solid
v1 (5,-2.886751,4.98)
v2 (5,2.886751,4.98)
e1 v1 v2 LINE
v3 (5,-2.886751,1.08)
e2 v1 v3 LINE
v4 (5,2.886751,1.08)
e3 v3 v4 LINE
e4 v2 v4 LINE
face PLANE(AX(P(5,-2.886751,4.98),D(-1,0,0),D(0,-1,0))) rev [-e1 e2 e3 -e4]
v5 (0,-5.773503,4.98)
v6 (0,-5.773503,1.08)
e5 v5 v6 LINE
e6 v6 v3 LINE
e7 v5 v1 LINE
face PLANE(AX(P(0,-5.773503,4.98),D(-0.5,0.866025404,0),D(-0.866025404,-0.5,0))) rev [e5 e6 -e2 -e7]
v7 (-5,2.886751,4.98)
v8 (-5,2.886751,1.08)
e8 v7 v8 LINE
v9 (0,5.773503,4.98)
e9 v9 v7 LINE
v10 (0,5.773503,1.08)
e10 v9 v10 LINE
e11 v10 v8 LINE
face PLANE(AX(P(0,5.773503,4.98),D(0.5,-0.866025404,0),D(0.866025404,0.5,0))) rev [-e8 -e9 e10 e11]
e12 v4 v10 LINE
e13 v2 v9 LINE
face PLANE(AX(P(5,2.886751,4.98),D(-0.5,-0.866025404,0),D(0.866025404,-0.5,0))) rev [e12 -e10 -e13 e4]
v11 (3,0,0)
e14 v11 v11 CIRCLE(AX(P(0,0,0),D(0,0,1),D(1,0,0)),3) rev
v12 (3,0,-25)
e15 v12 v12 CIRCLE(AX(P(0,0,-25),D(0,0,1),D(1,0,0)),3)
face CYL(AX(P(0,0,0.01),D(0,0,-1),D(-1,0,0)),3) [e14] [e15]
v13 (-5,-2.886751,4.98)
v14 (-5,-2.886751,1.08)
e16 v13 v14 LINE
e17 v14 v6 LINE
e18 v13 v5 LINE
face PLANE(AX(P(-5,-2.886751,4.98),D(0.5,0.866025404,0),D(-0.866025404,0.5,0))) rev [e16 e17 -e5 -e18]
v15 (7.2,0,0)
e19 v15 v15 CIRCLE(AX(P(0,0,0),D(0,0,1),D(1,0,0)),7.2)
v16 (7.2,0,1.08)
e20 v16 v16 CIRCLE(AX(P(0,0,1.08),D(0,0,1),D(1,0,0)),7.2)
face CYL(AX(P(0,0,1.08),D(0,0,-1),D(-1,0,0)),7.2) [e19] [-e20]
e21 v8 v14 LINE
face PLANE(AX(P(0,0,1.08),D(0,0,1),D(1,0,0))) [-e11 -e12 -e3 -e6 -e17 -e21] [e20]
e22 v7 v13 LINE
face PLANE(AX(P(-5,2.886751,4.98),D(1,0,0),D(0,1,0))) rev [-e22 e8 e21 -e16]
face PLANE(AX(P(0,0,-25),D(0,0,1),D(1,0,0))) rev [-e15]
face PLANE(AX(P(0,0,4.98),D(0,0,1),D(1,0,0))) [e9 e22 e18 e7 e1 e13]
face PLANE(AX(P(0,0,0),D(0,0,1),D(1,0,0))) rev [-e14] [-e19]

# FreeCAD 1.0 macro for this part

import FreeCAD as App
import Part
import Sketcher
Q = App.Units.Quantity


def add_polygon(sketch, points):
    """Adds a closed chain of lines whose ends are joined by coincident constraints."""
    first, n = sketch.GeometryCount, len(points)
    for a, b in zip(points, points[1:] + points[:1]):
        sketch.addGeometry(Part.LineSegment(App.Vector(*a, 0), App.Vector(*b, 0)), False)
    for i in range(n):
        sketch.addConstraint(Sketcher.Constraint("Coincident", first + i, 2, first + (i + 1) % n, 1))

doc = App.newDocument("Part")
params = doc.addObject("Spreadsheet::Sheet", "Params")
for row, (alias, value) in enumerate([
    ("sketch1_diameter", "14.4 mm"),
    ("pad1_length", "1.08 mm"),
    ("pad2_length", "3.9 mm"),
    ("sketch3_diameter", "6 mm"),
    ("pad3_length", "25.01 mm"),
], start=1):
    params.set(f"A{row}", alias)
    params.set(f"B{row}", "=" + value)
    params.setAlias(f"B{row}", alias)

body = doc.addObject("PartDesign::Body", "Body")

# Sketch on XY plane
sketch1 = body.newObject("Sketcher::SketchObject", "Sketch")
sketch1.AttachmentSupport = (doc.getObject("XY_Plane"), [""])
sketch1.MapMode = "FlatFace"
sketch1.addGeometry(Part.Circle(App.Vector(0, 0, 0), App.Vector(0, 0, 1), 7), False)
sketch1.addConstraint([
    Sketcher.Constraint("Coincident", 0, 3, -1, 1),
    Sketcher.Constraint("Diameter", 0, Q("14.4 mm")),
])
sketch1.setExpression("Constraints[1]", "Params.sketch1_diameter")
pad1 = body.newObject("PartDesign::Pad", "Pad")
pad1.Profile = sketch1
pad1.setExpression("Length", "Params.pad1_length")
body2 = doc.addObject("PartDesign::Body", "Body001")

# Sketch on XY plane
sketch2 = body2.newObject("Sketcher::SketchObject", "Sketch001")
sketch2.AttachmentSupport = (doc.getObject("XY_Plane001"), [""])
sketch2.MapMode = "FlatFace"
sketch2.AttachmentOffset = App.Placement(App.Vector(0, 0, 1.08), App.Rotation())
add_polygon(sketch2, [(5, 3), (0, 6), (-5, 3), (-5, -3), (0, -6), (5, -3)])  # lines 0-5
sketch2.addConstraint([
    Sketcher.Constraint("Vertical", 2),
    Sketcher.Constraint("Vertical", 5),
    Sketcher.Constraint("Symmetric", 0, 2, 3, 2, -1, 1),
    Sketcher.Constraint("Symmetric", 1, 2, 4, 2, -1, 1),
    Sketcher.Constraint("PointOnObject", 0, 2, -2),
    Sketcher.Constraint("Parallel", 0, 3),
    Sketcher.Constraint("Horizontal", 2, 2, 4, 2),
    Sketcher.Constraint("Angle", 0, Q("150 deg")),
    Sketcher.Constraint("DistanceX", 1, 2, -1, 1, Q("5 mm")),
    Sketcher.Constraint("DistanceY", 2, 2, 2, 1, Q("5.773503 mm")),
])
pad2 = body2.newObject("PartDesign::Pad", "Pad001")
pad2.Profile = sketch2
pad2.setExpression("Length", "Params.pad2_length")
body3 = doc.addObject("PartDesign::Body", "Body002")

# Sketch on XY plane
sketch3 = body3.newObject("Sketcher::SketchObject", "Sketch002")
sketch3.AttachmentSupport = (doc.getObject("XY_Plane002"), [""])
sketch3.MapMode = "FlatFace"
sketch3.AttachmentOffset = App.Placement(App.Vector(0, 0, -25), App.Rotation())
sketch3.addGeometry(Part.Circle(App.Vector(0, 0, 0), App.Vector(0, 0, 1), 3), False)
sketch3.addConstraint([
    Sketcher.Constraint("Coincident", 0, 3, -1, 1),
    Sketcher.Constraint("Diameter", 0, Q("6 mm")),
])
sketch3.setExpression("Constraints[1]", "Params.sketch3_diameter")
pad3 = body3.newObject("PartDesign::Pad", "Pad002")
pad3.Profile = sketch3
pad3.setExpression("Length", "Params.pad3_length")
doc.recompute()

boolean = body2.newObject("PartDesign::Boolean", "Boolean")
boolean.Type = "Fuse"
boolean.addObjects([body])
doc.recompute()

boolean2 = body2.newObject("PartDesign::Boolean", "Boolean001")
boolean2.Type = "Fuse"
boolean2.addObjects([body3])

doc.recompute()
